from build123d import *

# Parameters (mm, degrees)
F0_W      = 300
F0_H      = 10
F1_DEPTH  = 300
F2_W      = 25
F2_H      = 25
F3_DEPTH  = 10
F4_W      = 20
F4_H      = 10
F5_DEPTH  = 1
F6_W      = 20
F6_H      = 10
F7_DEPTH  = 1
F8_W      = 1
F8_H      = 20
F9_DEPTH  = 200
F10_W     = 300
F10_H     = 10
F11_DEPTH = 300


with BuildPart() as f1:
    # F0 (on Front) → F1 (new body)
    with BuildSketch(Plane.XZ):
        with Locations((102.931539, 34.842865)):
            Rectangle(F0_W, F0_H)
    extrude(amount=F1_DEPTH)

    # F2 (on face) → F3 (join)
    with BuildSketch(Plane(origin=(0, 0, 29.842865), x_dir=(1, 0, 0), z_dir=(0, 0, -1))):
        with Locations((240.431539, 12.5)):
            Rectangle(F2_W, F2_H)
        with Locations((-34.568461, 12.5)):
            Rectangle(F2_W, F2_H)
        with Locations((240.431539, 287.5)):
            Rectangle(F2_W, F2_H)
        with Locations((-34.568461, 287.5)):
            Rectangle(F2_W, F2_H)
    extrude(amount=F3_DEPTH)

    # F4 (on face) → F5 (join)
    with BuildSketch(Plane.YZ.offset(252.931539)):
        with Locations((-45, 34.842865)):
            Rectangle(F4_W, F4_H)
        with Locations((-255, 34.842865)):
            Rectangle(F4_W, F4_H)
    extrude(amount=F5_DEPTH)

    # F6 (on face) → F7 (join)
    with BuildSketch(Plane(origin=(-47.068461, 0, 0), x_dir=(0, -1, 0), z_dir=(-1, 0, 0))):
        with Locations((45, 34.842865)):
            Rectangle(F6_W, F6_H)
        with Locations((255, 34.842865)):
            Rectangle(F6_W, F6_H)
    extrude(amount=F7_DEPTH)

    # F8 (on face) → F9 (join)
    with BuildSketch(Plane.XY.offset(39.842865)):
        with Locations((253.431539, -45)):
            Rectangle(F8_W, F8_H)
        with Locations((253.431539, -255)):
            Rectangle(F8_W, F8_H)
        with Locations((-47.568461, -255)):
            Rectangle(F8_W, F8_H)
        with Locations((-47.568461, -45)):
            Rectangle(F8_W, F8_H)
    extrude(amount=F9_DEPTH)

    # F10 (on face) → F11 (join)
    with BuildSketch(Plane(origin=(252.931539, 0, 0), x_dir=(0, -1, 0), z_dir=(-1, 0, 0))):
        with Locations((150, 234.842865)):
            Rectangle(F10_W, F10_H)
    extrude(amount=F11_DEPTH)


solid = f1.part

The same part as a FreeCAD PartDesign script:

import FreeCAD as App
import Part
import Sketcher

V = App.Vector

doc = App.newDocument("Part")
params = doc.addObject("Spreadsheet::Sheet", "Params")
for row, (alias, value) in enumerate([
    ("sketch1_width", "300 mm"),
    ("sketch1_height", "10 mm"),
    ("pad1_length", "300 mm"),
    ("sketch2_width", "25 mm"),
    ("pad2_length", "10 mm"),
    ("sketch3_width", "20 mm"),
    ("sketch3_height", "10 mm"),
    ("pad3_length", "1 mm"),
    ("sketch4_width", "20 mm"),
    ("sketch4_height", "10 mm"),
    ("pad4_length", "1 mm"),
    ("sketch5_width", "1 mm"),
    ("sketch5_height", "20 mm"),
    ("pad5_length", "200 mm"),
    ("sketch6_width", "300 mm"),
    ("sketch6_height", "10 mm"),
    ("pad6_length", "300 mm"),
], start=1):
    params.set(f"A{row}", alias)
    params.set(f"B{row}", "=" + value)
    params.setAlias(f"B{row}", alias)

body = doc.addObject("PartDesign::Body", "Body")

# Sketch on XZ plane
sketch1 = body.newObject("Sketcher::SketchObject", "Sketch")
sketch1.AttachmentSupport = (doc.getObject("XZ_Plane"), [""])
sketch1.MapMode = "FlatFace"
sketch1.addGeometry([
    Part.LineSegment(V(-47, 40, 0), V(-47, 30, 0)),
    Part.LineSegment(V(-47, 30, 0), V(253, 30, 0)),
    Part.LineSegment(V(253, 30, 0), V(253, 40, 0)),
    Part.LineSegment(V(253, 40, 0), V(-47, 40, 0)),
], False)
sketch1.addConstraint([
    Sketcher.Constraint("Coincident", 0, 2, 1, 1),
    Sketcher.Constraint("Coincident", 1, 2, 2, 1),
    Sketcher.Constraint("Coincident", 2, 2, 3, 1),
    Sketcher.Constraint("Coincident", 3, 2, 0, 1),
    Sketcher.Constraint("Vertical", 0),
    Sketcher.Constraint("Horizontal", 1),
    Sketcher.Constraint("Vertical", 2),
    Sketcher.Constraint("Horizontal", 3),
    Sketcher.Constraint("DistanceX", 1, 1, 1, 2, 300.0),
    Sketcher.Constraint("DistanceY", 0, 2, 0, 1, 10.0),
    Sketcher.Constraint("DistanceX", 0, 2, -1, 1, 47.068461),
    Sketcher.Constraint("DistanceY", -1, 1, 0, 2, 29.842865),
])
sketch1.setExpression("Constraints[8]", "Params.sketch1_width")
sketch1.setExpression("Constraints[9]", "Params.sketch1_height")
pad1 = body.newObject("PartDesign::Pad", "Pad")
pad1.Profile = sketch1
pad1.setExpression("Length", "Params.pad1_length")

# Sketch on XY plane
sketch2 = body.newObject("Sketcher::SketchObject", "Sketch001")
sketch2.AttachmentSupport = (doc.getObject("XY_Plane"), [""])
sketch2.MapMode = "FlatFace"
sketch2.AttachmentOffset = App.Placement(V(0, 0, 29.842865), App.Rotation())
sketch2.addGeometry([
    Part.LineSegment(V(228, -25, 0), V(228, 0, 0)),  # 0
    Part.LineSegment(V(228, 0, 0), V(253, 0, 0)),  # 1
    Part.LineSegment(V(253, 0, 0), V(253, -25, 0)),  # 2
    Part.LineSegment(V(253, -25, 0), V(228, -25, 0)),  # 3
    Part.LineSegment(V(-47, -25, 0), V(-47, 0, 0)),  # 4
    Part.LineSegment(V(-47, 0, 0), V(-22, 0, 0)),  # 5
    Part.LineSegment(V(-22, 0, 0), V(-22, -25, 0)),  # 6
    Part.LineSegment(V(-22, -25, 0), V(-47, -25, 0)),  # 7
    Part.LineSegment(V(228, -300, 0), V(228, -275, 0)),  # 8
    Part.LineSegment(V(228, -275, 0), V(253, -275, 0)),  # 9
    Part.LineSegment(V(253, -275, 0), V(253, -300, 0)),  # 10
    Part.LineSegment(V(253, -300, 0), V(228, -300, 0)),  # 11
    Part.LineSegment(V(-47, -300, 0), V(-47, -275, 0)),  # 12
    Part.LineSegment(V(-47, -275, 0), V(-22, -275, 0)),  # 13
    Part.LineSegment(V(-22, -275, 0), V(-22, -300, 0)),  # 14
    Part.LineSegment(V(-22, -300, 0), V(-47, -300, 0)),  # 15
], False)
sketch2.addConstraint([
    Sketcher.Constraint("Coincident", 0, 2, 1, 1),
    Sketcher.Constraint("Coincident", 1, 2, 2, 1),
    Sketcher.Constraint("Coincident", 2, 2, 3, 1),
    Sketcher.Constraint("Coincident", 3, 2, 0, 1),
    Sketcher.Constraint("Coincident", 4, 2, 5, 1),
    Sketcher.Constraint("Coincident", 5, 2, 6, 1),
    Sketcher.Constraint("Coincident", 6, 2, 7, 1),
    Sketcher.Constraint("Coincident", 7, 2, 4, 1),
    Sketcher.Constraint("Coincident", 8, 2, 9, 1),
    Sketcher.Constraint("Coincident", 9, 2, 10, 1),
    Sketcher.Constraint("Coincident", 10, 2, 11, 1),
    Sketcher.Constraint("Coincident", 11, 2, 8, 1),
    Sketcher.Constraint("Coincident", 12, 2, 13, 1),
    Sketcher.Constraint("Coincident", 13, 2, 14, 1),
    Sketcher.Constraint("Coincident", 14, 2, 15, 1),
    Sketcher.Constraint("Coincident", 15, 2, 12, 1),
    Sketcher.Constraint("Vertical", 0),
    Sketcher.Constraint("Horizontal", 1),
    Sketcher.Constraint("Vertical", 2),
    Sketcher.Constraint("Horizontal", 3),
    Sketcher.Constraint("Vertical", 4),
    Sketcher.Constraint("Horizontal", 5),
    Sketcher.Constraint("Vertical", 6),
    Sketcher.Constraint("Horizontal", 7),
    Sketcher.Constraint("Vertical", 8),
    Sketcher.Constraint("Horizontal", 9),
    Sketcher.Constraint("Vertical", 10),
    Sketcher.Constraint("Horizontal", 11),
    Sketcher.Constraint("Vertical", 12),
    Sketcher.Constraint("Horizontal", 13),
    Sketcher.Constraint("Vertical", 14),
    Sketcher.Constraint("Horizontal", 15),
    Sketcher.Constraint("PointOnObject", 0, 2, -1),
    Sketcher.Constraint("PointOnObject", 4, 2, -1),
    Sketcher.Constraint("Horizontal", 3, 2, 6, 2),
    Sketcher.Constraint("Horizontal", 9, 2, 12, 2),
    Sketcher.Constraint("Horizontal", 11, 2, 14, 2),
    Sketcher.Constraint("Vertical", 3, 2, 8, 2),
    Sketcher.Constraint("Vertical", 2, 2, 9, 2),
    Sketcher.Constraint("Vertical", 7, 2, 12, 2),
    Sketcher.Constraint("Vertical", 6, 2, 13, 2),
    Sketcher.Constraint("Equal", 3, 5),
    Sketcher.Constraint("Equal", 15, 0),
    Sketcher.Constraint("Equal", 6, 8),
    Sketcher.Constraint("DistanceX", 1, 1, 1, 2, 25.0),
    Sketcher.Constraint("DistanceY", 8, 2, -1, 1, 275.0),
    Sketcher.Constraint("DistanceX", 4, 2, 0, 2, 275.0),
    Sketcher.Constraint("DistanceX", -1, 1, 0, 2, 227.931539),
])
sketch2.setExpression("Constraints[44]", "Params.sketch2_width")
pad2 = body.newObject("PartDesign::Pad", "Pad001")
pad2.Profile = sketch2
pad2.setExpression("Length", "Params.pad2_length")
pad2.Reversed = True

# Sketch on YZ plane
sketch3 = body.newObject("Sketcher::SketchObject", "Sketch002")
sketch3.AttachmentSupport = (doc.getObject("YZ_Plane"), [""])
sketch3.MapMode = "FlatFace"
sketch3.AttachmentOffset = App.Placement(V(0, 0, 252.931539), App.Rotation())
sketch3.addGeometry([
    Part.LineSegment(V(-55, 40, 0), V(-55, 30, 0)),  # 0
    Part.LineSegment(V(-55, 30, 0), V(-35, 30, 0)),  # 1
    Part.LineSegment(V(-35, 30, 0), V(-35, 40, 0)),  # 2
    Part.LineSegment(V(-35, 40, 0), V(-55, 40, 0)),  # 3
    Part.LineSegment(V(-265, 40, 0), V(-265, 30, 0)),  # 4
    Part.LineSegment(V(-265, 30, 0), V(-245, 30, 0)),  # 5
    Part.LineSegment(V(-245, 30, 0), V(-245, 40, 0)),  # 6
    Part.LineSegment(V(-245, 40, 0), V(-265, 40, 0)),  # 7
], False)
sketch3.addConstraint([
    Sketcher.Constraint("Coincident", 0, 2, 1, 1),
    Sketcher.Constraint("Coincident", 1, 2, 2, 1),
    Sketcher.Constraint("Coincident", 2, 2, 3, 1),
    Sketcher.Constraint("Coincident", 3, 2, 0, 1),
    Sketcher.Constraint("Coincident", 4, 2, 5, 1),
    Sketcher.Constraint("Coincident", 5, 2, 6, 1),
    Sketcher.Constraint("Coincident", 6, 2, 7, 1),
    Sketcher.Constraint("Coincident", 7, 2, 4, 1),
    Sketcher.Constraint("Vertical", 0),
    Sketcher.Constraint("Horizontal", 1),
    Sketcher.Constraint("Vertical", 2),
    Sketcher.Constraint("Horizontal", 3),
    Sketcher.Constraint("Vertical", 4),
    Sketcher.Constraint("Horizontal", 5),
    Sketcher.Constraint("Vertical", 6),
    Sketcher.Constraint("Horizontal", 7),
    Sketcher.Constraint("Horizontal", 1, 2, 4, 2),
    Sketcher.Constraint("Horizontal", 3, 2, 6, 2),
    Sketcher.Constraint("Equal", 3, 5),
    Sketcher.Constraint("DistanceX", 1, 1, 1, 2, 20.0),
    Sketcher.Constraint("DistanceY", 0, 2, 0, 1, 10.0),
    Sketcher.Constraint("DistanceX", 0, 2, -1, 1, 55.0),
    Sketcher.Constraint("DistanceX", 4, 2, -1, 1, 265.0),
    Sketcher.Constraint("DistanceY", -1, 1, 0, 2, 29.842865),
])
sketch3.setExpression("Constraints[19]", "Params.sketch3_width")
sketch3.setExpression("Constraints[20]", "Params.sketch3_height")
pad3 = body.newObject("PartDesign::Pad", "Pad002")
pad3.Profile = sketch3
pad3.setExpression("Length", "Params.pad3_length")

# Sketch on YZ plane
sketch4 = body.newObject("Sketcher::SketchObject", "Sketch003")
sketch4.AttachmentSupport = (doc.getObject("YZ_Plane"), [""])
sketch4.MapMode = "FlatFace"
sketch4.AttachmentOffset = App.Placement(V(0, 0, -47.068461), App.Rotation())
sketch4.addGeometry([
    Part.LineSegment(V(-35, 40, 0), V(-35, 30, 0)),  # 0
    Part.LineSegment(V(-35, 30, 0), V(-55, 30, 0)),  # 1
    Part.LineSegment(V(-55, 30, 0), V(-55, 40, 0)),  # 2
    Part.LineSegment(V(-55, 40, 0), V(-35, 40, 0)),  # 3
    Part.LineSegment(V(-245, 40, 0), V(-245, 30, 0)),  # 4
    Part.LineSegment(V(-245, 30, 0), V(-265, 30, 0)),  # 5
    Part.LineSegment(V(-265, 30, 0), V(-265, 40, 0)),  # 6
    Part.LineSegment(V(-265, 40, 0), V(-245, 40, 0)),  # 7
], False)
sketch4.addConstraint([
    Sketcher.Constraint("Coincident", 0, 2, 1, 1),
    Sketcher.Constraint("Coincident", 1, 2, 2, 1),
    Sketcher.Constraint("Coincident", 2, 2, 3, 1),
    Sketcher.Constraint("Coincident", 3, 2, 0, 1),
    Sketcher.Constraint("Coincident", 4, 2, 5, 1),
    Sketcher.Constraint("Coincident", 5, 2, 6, 1),
    Sketcher.Constraint("Coincident", 6, 2, 7, 1),
    Sketcher.Constraint("Coincident", 7, 2, 4, 1),
    Sketcher.Constraint("Vertical", 0),
    Sketcher.Constraint("Horizontal", 1),
    Sketcher.Constraint("Vertical", 2),
    Sketcher.Constraint("Horizontal", 3),
    Sketcher.Constraint("Vertical", 4),
    Sketcher.Constraint("Horizontal", 5),
    Sketcher.Constraint("Vertical", 6),
    Sketcher.Constraint("Horizontal", 7),
    Sketcher.Constraint("Horizontal", 1, 2, 4, 2),
    Sketcher.Constraint("Horizontal", 3, 2, 6, 2),
    Sketcher.Constraint("Equal", 3, 5),
    Sketcher.Constraint("DistanceX", 1, 2, 1, 1, 20.0),
    Sketcher.Constraint("DistanceY", 0, 2, 0, 1, 10.0),
    Sketcher.Constraint("DistanceX", 0, 2, -1, 1, 35.0),
    Sketcher.Constraint("DistanceX", 4, 2, -1, 1, 245.0),
    Sketcher.Constraint("DistanceY", -1, 1, 0, 2, 29.842865),
])
sketch4.setExpression("Constraints[19]", "Params.sketch4_width")
sketch4.setExpression("Constraints[20]", "Params.sketch4_height")
pad4 = body.newObject("PartDesign::Pad", "Pad003")
pad4.Profile = sketch4
pad4.setExpression("Length", "Params.pad4_length")
pad4.Reversed = True

# Sketch on XY plane
sketch5 = body.newObject("Sketcher::SketchObject", "Sketch004")
sketch5.AttachmentSupport = (doc.getObject("XY_Plane"), [""])
sketch5.MapMode = "FlatFace"
sketch5.AttachmentOffset = App.Placement(V(0, 0, 39.842865), App.Rotation())
sketch5.addGeometry([
    Part.LineSegment(V(252.9, -35, 0), V(252.9, -55, 0)),  # 0
    Part.LineSegment(V(252.9, -55, 0), V(253.9, -55, 0)),  # 1
    Part.LineSegment(V(253.9, -55, 0), V(253.9, -35, 0)),  # 2
    Part.LineSegment(V(253.9, -35, 0), V(252.9, -35, 0)),  # 3
    Part.LineSegment(V(252.9, -245, 0), V(252.9, -265, 0)),  # 4
    Part.LineSegment(V(252.9, -265, 0), V(253.9, -265, 0)),  # 5
    Part.LineSegment(V(253.9, -265, 0), V(253.9, -245, 0)),  # 6
    Part.LineSegment(V(253.9, -245, 0), V(252.9, -245, 0)),  # 7
    Part.LineSegment(V(-48.1, -245, 0), V(-48.1, -265, 0)),  # 8
    Part.LineSegment(V(-48.1, -265, 0), V(-47.1, -265, 0)),  # 9
    Part.LineSegment(V(-47.1, -265, 0), V(-47.1, -245, 0)),  # 10
    Part.LineSegment(V(-47.1, -245, 0), V(-48.1, -245, 0)),  # 11
    Part.LineSegment(V(-48.1, -35, 0), V(-48.1, -55, 0)),  # 12
    Part.LineSegment(V(-48.1, -55, 0), V(-47.1, -55, 0)),  # 13
    Part.LineSegment(V(-47.1, -55, 0), V(-47.1, -35, 0)),  # 14
    Part.LineSegment(V(-47.1, -35, 0), V(-48.1, -35, 0)),  # 15
], False)
sketch5.addConstraint([
    Sketcher.Constraint("Coincident", 0, 2, 1, 1),
    Sketcher.Constraint("Coincident", 1, 2, 2, 1),
    Sketcher.Constraint("Coincident", 2, 2, 3, 1),
    Sketcher.Constraint("Coincident", 3, 2, 0, 1),
    Sketcher.Constraint("Coincident", 4, 2, 5, 1),
    Sketcher.Constraint("Coincident", 5, 2, 6, 1),
    Sketcher.Constraint("Coincident", 6, 2, 7, 1),
    Sketcher.Constraint("Coincident", 7, 2, 4, 1),
    Sketcher.Constraint("Coincident", 8, 2, 9, 1),
    Sketcher.Constraint("Coincident", 9, 2, 10, 1),
    Sketcher.Constraint("Coincident", 10, 2, 11, 1),
    Sketcher.Constraint("Coincident", 11, 2, 8, 1),
    Sketcher.Constraint("Coincident", 12, 2, 13, 1),
    Sketcher.Constraint("Coincident", 13, 2, 14, 1),
    Sketcher.Constraint("Coincident", 14, 2, 15, 1),
    Sketcher.Constraint("Coincident", 15, 2, 12, 1),
    Sketcher.Constraint("Vertical", 0),
    Sketcher.Constraint("Horizontal", 1),
    Sketcher.Constraint("Vertical", 2),
    Sketcher.Constraint("Horizontal", 3),
    Sketcher.Constraint("Vertical", 4),
    Sketcher.Constraint("Horizontal", 5),
    Sketcher.Constraint("Vertical", 6),
    Sketcher.Constraint("Horizontal", 7),
    Sketcher.Constraint("Vertical", 8),
    Sketcher.Constraint("Horizontal", 9),
    Sketcher.Constraint("Vertical", 10),
    Sketcher.Constraint("Horizontal", 11),
    Sketcher.Constraint("Vertical", 12),
    Sketcher.Constraint("Horizontal", 13),
    Sketcher.Constraint("Vertical", 14),
    Sketcher.Constraint("Horizontal", 15),
    Sketcher.Constraint("Horizontal", 5, 2, 8, 2),
    Sketcher.Constraint("Horizontal", 7, 2, 10, 2),
    Sketcher.Constraint("Horizontal", 1, 2, 12, 2),
    Sketcher.Constraint("Horizontal", 3, 2, 14, 2),
    Sketcher.Constraint("Vertical", 3, 2, 4, 2),
    Sketcher.Constraint("Vertical", 2, 2, 5, 2),
    Sketcher.Constraint("Vertical", 11, 2, 12, 2),
    Sketcher.Constraint("Vertical", 10, 2, 13, 2),
    Sketcher.Constraint("Equal", 7, 9),
    Sketcher.Constraint("Equal", 2, 4),
    Sketcher.Constraint("DistanceX", 1, 1, 1, 2, 1.0),
    Sketcher.Constraint("DistanceY", 0, 2, 0, 1, 20.0),
    Sketcher.Constraint("DistanceY", 0, 2, -1, 1, 55.0),
    Sketcher.Constraint("DistanceY", 4, 2, -1, 1, 265.0),
    Sketcher.Constraint("DistanceX", 8, 2, 4, 2, 301.0),
    Sketcher.Constraint("DistanceX", -1, 1, 0, 2, 252.931539),
])
sketch5.setExpression("Constraints[42]", "Params.sketch5_width")
sketch5.setExpression("Constraints[43]", "Params.sketch5_height")
pad5 = body.newObject("PartDesign::Pad", "Pad004")
pad5.Profile = sketch5
pad5.setExpression("Length", "Params.pad5_length")

# Sketch on YZ plane
sketch6 = body.newObject("Sketcher::SketchObject", "Sketch005")
sketch6.AttachmentSupport = (doc.getObject("YZ_Plane"), [""])
sketch6.MapMode = "FlatFace"
sketch6.AttachmentOffset = App.Placement(V(0, 0, 252.931539), App.Rotation())
sketch6.addGeometry([
    Part.LineSegment(V(0, 240, 0), V(0, 230, 0)),
    Part.LineSegment(V(0, 230, 0), V(-300, 230, 0)),
    Part.LineSegment(V(-300, 230, 0), V(-300, 240, 0)),
    Part.LineSegment(V(-300, 240, 0), V(0, 240, 0)),
], False)
sketch6.addConstraint([
    Sketcher.Constraint("Coincident", 0, 2, 1, 1),
    Sketcher.Constraint("Coincident", 1, 2, 2, 1),
    Sketcher.Constraint("Coincident", 2, 2, 3, 1),
    Sketcher.Constraint("Coincident", 3, 2, 0, 1),
    Sketcher.Constraint("Vertical", 0),
    Sketcher.Constraint("Horizontal", 1),
    Sketcher.Constraint("Vertical", 2),
    Sketcher.Constraint("Horizontal", 3),
    Sketcher.Constraint("PointOnObject", 0, 2, -2),
    Sketcher.Constraint("DistanceX", 1, 2, 1, 1, 300.0),
    Sketcher.Constraint("DistanceY", 0, 2, 0, 1, 10.0),
    Sketcher.Constraint("DistanceY", -1, 1, 0, 2, 229.842865),
])
sketch6.setExpression("Constraints[9]", "Params.sketch6_width")
sketch6.setExpression("Constraints[10]", "Params.sketch6_height")
pad6 = body.newObject("PartDesign::Pad", "Pad005")
pad6.Profile = sketch6
pad6.setExpression("Length", "Params.pad6_length")
pad6.Reversed = True

doc.recompute()
